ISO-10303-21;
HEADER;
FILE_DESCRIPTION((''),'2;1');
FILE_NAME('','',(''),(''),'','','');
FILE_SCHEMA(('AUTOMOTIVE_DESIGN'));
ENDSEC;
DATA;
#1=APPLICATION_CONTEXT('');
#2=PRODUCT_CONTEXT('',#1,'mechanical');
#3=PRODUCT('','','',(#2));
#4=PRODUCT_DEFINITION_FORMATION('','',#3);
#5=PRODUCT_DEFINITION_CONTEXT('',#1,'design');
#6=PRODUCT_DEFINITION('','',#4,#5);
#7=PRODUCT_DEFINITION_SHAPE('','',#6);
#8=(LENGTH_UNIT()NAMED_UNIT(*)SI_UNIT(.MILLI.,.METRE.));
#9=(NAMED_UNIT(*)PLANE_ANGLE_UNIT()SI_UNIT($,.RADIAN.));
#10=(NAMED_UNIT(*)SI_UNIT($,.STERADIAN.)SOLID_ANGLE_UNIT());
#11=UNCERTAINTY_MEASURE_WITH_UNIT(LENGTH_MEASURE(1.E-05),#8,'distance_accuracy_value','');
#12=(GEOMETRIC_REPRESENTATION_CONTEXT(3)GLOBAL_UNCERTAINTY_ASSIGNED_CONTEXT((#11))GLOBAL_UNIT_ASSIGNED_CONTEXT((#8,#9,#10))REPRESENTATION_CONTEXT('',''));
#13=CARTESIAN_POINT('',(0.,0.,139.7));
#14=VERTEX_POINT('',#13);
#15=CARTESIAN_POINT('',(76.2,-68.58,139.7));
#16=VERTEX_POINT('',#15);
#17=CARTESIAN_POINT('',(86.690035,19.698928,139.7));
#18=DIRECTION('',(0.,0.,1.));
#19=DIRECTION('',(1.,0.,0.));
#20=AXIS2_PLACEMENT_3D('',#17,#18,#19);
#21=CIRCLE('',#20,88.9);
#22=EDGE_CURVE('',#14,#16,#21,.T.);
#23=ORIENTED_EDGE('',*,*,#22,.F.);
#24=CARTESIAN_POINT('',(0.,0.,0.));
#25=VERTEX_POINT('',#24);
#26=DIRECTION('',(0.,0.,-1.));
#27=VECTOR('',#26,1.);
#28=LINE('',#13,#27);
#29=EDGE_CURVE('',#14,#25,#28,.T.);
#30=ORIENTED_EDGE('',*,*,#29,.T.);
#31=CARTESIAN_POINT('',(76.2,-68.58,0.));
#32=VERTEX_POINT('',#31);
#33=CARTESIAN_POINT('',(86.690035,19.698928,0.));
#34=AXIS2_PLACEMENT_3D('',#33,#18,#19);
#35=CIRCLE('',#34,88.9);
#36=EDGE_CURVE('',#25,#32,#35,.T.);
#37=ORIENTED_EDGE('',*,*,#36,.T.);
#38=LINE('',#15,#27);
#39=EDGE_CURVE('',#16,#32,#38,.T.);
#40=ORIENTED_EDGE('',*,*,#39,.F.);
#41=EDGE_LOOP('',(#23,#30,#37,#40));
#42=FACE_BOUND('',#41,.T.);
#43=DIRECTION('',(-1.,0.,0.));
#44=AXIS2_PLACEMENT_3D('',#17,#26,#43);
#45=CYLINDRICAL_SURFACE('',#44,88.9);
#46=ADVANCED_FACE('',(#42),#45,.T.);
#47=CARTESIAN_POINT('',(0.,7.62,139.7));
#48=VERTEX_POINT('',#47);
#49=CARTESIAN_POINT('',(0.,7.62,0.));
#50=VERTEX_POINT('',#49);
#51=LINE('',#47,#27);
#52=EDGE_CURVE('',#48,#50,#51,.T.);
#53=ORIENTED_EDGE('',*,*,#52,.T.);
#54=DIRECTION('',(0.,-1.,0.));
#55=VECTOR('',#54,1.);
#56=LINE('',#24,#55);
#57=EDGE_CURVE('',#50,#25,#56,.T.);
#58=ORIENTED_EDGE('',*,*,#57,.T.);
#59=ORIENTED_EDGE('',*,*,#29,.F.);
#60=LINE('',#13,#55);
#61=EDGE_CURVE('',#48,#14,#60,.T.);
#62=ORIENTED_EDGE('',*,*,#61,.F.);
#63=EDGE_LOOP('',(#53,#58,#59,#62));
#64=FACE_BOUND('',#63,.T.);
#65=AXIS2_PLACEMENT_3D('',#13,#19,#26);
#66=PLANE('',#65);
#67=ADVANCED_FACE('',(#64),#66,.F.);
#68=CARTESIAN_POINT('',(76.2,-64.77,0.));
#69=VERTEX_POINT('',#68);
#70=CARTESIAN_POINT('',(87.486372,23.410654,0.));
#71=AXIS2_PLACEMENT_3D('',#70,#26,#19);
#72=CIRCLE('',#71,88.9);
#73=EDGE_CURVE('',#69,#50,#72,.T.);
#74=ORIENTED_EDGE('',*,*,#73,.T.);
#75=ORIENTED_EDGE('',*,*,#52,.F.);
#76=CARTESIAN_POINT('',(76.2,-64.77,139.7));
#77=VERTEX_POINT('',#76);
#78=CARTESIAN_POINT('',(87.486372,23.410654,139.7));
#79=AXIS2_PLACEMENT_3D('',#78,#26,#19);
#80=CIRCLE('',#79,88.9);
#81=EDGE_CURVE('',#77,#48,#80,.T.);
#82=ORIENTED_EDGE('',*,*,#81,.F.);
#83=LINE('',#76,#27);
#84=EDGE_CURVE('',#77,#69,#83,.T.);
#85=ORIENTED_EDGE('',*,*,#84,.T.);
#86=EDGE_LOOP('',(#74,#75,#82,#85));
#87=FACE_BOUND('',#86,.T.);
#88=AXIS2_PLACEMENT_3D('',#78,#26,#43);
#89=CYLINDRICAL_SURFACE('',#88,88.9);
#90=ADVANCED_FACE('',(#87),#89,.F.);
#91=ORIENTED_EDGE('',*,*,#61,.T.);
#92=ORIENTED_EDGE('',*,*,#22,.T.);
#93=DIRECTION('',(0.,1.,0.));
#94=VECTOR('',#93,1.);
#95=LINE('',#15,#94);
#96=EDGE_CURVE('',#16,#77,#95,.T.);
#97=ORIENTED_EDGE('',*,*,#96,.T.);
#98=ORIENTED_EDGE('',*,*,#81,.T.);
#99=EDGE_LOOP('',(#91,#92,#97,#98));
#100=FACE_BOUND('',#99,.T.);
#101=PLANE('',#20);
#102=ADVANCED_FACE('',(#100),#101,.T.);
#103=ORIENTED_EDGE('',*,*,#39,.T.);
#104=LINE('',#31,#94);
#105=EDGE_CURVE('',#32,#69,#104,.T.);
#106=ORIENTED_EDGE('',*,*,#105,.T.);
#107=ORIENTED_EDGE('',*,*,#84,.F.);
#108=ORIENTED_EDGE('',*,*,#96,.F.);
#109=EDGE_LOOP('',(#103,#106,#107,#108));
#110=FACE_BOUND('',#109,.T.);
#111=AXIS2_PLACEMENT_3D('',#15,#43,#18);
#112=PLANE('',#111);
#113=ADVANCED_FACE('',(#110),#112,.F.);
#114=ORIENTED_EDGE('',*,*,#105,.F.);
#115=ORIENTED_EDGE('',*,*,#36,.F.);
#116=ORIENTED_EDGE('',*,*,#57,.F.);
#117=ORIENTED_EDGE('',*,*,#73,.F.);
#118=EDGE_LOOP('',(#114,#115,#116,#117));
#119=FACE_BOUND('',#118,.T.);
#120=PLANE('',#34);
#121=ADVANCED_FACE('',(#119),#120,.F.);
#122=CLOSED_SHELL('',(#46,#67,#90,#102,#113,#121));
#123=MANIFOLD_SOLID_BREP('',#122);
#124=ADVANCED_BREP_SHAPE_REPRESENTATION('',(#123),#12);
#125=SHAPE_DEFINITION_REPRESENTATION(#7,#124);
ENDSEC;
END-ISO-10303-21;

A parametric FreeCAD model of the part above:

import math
import FreeCAD as App
import Part
import Sketcher
from FreeCAD import Vector
Q = App.Units.Quantity

doc = App.newDocument("Part")
body = doc.addObject("PartDesign::Body", "Body")

# Sketch on XY plane
sketch1 = doc.addObject("Sketcher::SketchObject", "Sketch")
body.addObject(sketch1)
sketch1.AttachmentSupport = (doc.XY_Plane, [""])
sketch1.MapMode = "FlatFace"
sketch1.addGeometry([
    Part.LineSegment(Vector(0, 7.62, 0), Vector(0, 0, 0)),
    Part.ArcOfCircle(Part.Circle(Vector(86.690035, 19.698928, 0), Vector(0, 0, 1), 88.9), math.radians(-167.197841), math.radians(-96.776584)),
    Part.LineSegment(Vector(76.2, -68.58, 0), Vector(76.2, -64.77, 0)),
    Part.ArcOfCircle(Part.Circle(Vector(87.486372, 23.410654, 0), Vector(0, 0, 1), 88.9), math.radians(-169.768683), math.radians(-97.293716)),
], False)
sketch1.addConstraint([
    Sketcher.Constraint("Coincident", 0, 2, 1, 1),
    Sketcher.Constraint("Coincident", 1, 2, 2, 1),
    Sketcher.Constraint("Coincident", 2, 2, 3, 2),
    Sketcher.Constraint("Coincident", 3, 1, 0, 1),
    Sketcher.Constraint("Vertical", 0),
    Sketcher.Constraint("Vertical", 2),
    Sketcher.Constraint("Coincident", 0, 2, -1, 1),
    Sketcher.Constraint("Equal", 1, 3),
    Sketcher.Constraint("Radius", 1, Q("3.5 in")),
    Sketcher.Constraint("DistanceY", 0, 2, 0, 1, Q("0.3 in")),
    Sketcher.Constraint("DistanceX", -1, 1, 1, 2, Q("3 in")),
    Sketcher.Constraint("DistanceY", 1, 2, 3, 1, Q("3 in")),
    Sketcher.Constraint("DistanceY", 2, 1, 2, 2, Q("0.15 in")),
])
pad1 = doc.addObject("PartDesign::Pad", "Pad")
body.addObject(pad1)
pad1.Profile = sketch1
pad1.Length = Q("5.5 in")

doc.recompute()
